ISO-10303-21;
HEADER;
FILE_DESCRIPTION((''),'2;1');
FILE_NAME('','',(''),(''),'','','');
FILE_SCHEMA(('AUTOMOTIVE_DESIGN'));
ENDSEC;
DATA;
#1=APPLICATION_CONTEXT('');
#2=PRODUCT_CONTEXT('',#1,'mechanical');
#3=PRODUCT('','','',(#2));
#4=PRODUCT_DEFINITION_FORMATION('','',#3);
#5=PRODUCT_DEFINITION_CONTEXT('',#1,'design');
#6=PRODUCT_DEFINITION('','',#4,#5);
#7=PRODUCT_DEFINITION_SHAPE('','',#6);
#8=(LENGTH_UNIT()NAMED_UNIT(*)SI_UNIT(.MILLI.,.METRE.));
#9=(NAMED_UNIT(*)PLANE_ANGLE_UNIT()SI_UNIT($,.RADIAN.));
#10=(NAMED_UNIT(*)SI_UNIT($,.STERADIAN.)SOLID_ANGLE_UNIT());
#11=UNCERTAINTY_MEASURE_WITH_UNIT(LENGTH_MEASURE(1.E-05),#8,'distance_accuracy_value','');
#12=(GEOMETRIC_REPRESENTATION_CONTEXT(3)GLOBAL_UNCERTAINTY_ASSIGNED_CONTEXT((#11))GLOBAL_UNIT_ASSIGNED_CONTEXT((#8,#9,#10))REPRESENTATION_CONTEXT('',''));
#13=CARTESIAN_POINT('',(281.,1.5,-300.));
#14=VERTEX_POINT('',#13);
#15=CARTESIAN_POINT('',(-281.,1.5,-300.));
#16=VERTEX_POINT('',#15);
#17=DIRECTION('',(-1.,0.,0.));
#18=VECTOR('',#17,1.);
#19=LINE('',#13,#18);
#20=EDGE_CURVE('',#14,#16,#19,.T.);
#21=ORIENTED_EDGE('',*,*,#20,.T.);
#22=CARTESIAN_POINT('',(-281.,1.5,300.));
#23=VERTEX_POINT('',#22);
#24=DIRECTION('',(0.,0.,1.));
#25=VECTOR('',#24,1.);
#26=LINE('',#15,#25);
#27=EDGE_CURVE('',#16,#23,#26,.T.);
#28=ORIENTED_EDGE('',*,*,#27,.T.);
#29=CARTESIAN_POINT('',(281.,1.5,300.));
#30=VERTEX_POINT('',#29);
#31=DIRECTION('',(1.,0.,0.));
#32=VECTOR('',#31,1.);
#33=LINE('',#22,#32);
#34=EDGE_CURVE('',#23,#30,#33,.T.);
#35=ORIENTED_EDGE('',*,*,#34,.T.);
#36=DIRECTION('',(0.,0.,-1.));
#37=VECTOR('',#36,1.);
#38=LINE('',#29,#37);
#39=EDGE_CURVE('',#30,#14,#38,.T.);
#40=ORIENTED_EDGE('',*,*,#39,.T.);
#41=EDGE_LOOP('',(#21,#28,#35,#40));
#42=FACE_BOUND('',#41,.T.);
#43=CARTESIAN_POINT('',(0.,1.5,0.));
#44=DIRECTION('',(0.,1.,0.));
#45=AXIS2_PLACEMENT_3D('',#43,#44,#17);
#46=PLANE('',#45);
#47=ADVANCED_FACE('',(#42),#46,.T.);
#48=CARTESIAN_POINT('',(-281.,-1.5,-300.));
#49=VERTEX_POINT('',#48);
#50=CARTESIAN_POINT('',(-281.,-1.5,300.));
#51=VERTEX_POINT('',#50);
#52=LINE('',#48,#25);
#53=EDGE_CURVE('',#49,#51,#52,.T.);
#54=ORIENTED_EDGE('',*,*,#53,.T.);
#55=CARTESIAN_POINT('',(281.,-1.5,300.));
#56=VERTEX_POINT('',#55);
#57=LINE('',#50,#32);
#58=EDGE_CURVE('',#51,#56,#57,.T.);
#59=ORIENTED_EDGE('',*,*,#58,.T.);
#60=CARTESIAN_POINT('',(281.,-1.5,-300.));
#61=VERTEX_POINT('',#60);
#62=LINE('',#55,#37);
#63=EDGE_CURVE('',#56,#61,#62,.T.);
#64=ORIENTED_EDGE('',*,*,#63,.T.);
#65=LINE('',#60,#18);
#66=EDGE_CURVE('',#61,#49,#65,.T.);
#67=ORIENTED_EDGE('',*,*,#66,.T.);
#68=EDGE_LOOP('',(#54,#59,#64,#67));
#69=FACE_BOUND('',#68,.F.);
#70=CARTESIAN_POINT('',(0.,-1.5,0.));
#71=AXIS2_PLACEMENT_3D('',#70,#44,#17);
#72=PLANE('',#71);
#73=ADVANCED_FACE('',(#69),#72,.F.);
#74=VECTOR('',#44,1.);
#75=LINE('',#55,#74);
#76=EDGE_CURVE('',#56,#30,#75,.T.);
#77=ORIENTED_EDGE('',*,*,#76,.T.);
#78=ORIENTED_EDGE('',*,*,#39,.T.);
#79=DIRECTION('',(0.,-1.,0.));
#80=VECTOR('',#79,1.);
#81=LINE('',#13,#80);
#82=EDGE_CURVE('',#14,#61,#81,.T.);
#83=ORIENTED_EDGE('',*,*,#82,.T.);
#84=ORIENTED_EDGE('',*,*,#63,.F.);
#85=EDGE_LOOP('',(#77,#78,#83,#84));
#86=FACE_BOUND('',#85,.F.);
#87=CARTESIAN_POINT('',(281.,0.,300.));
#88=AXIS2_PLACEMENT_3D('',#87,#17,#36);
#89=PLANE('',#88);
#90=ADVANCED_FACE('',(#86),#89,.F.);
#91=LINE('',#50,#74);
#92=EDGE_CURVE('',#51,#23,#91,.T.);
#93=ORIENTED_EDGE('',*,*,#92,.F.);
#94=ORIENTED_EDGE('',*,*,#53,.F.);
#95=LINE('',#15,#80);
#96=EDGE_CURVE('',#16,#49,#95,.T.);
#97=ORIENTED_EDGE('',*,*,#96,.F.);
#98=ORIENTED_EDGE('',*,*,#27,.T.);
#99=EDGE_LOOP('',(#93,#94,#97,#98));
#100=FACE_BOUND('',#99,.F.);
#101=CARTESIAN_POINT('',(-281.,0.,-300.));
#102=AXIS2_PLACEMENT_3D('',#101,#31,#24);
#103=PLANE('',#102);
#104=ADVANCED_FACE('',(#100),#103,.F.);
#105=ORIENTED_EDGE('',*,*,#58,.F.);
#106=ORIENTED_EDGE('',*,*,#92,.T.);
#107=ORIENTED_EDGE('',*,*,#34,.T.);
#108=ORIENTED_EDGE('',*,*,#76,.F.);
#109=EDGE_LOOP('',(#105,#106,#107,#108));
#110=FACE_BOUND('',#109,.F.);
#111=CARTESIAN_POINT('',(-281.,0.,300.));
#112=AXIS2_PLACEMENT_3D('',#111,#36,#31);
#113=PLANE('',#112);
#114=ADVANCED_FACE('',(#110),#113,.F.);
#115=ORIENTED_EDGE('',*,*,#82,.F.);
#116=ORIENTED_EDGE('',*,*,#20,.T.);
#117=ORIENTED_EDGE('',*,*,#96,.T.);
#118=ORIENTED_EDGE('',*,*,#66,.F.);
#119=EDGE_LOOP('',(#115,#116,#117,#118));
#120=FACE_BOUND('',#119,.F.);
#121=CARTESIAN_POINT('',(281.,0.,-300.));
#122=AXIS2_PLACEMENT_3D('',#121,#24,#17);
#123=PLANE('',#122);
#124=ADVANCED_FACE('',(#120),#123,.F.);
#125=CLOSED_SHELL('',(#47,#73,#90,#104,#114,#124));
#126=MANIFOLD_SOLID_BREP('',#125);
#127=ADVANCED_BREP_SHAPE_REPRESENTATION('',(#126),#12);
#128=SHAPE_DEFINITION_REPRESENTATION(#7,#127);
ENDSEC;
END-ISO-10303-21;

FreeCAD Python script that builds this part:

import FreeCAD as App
import Part
import Sketcher

V = App.Vector

doc = App.newDocument("Part")
body = doc.addObject("PartDesign::Body", "Body")

sketch1 = body.newObject("Sketcher::SketchObject", "Sketch")
sketch1.AttachmentSupport = (doc.getObject("XZ_Plane"), [""])
sketch1.MapMode = "FlatFace"
sketch1.addGeometry(Part.LineSegment(V(-281, -300, 0), V(-281, 300, 0)), False)
sketch1.addGeometry(Part.LineSegment(V(-281, 300, 0), V(281, 300, 0)), False)
sketch1.addGeometry(Part.LineSegment(V(281, 300, 0), V(281, -300, 0)), False)
sketch1.addGeometry(Part.LineSegment(V(281, -300, 0), V(-281, -300, 0)), False)
sketch1.addConstraint(Sketcher.Constraint("Coincident", 0, 2, 1, 1))
sketch1.addConstraint(Sketcher.Constraint("Coincident", 1, 2, 2, 1))
sketch1.addConstraint(Sketcher.Constraint("Coincident", 2, 2, 3, 1))
sketch1.addConstraint(Sketcher.Constraint("Coincident", 3, 2, 0, 1))
sketch1.addConstraint(Sketcher.Constraint("Vertical", 0))
sketch1.addConstraint(Sketcher.Constraint("Horizontal", 1))
sketch1.addConstraint(Sketcher.Constraint("Vertical", 2))
sketch1.addConstraint(Sketcher.Constraint("Horizontal", 3))
sketch1.addConstraint(Sketcher.Constraint("Symmetric", 0, 2, 2, 2, -1, 1))
sketch1.addConstraint(Sketcher.Constraint("DistanceX", 1, 1, 1, 2, 562.0))
sketch1.addConstraint(Sketcher.Constraint("DistanceY", 0, 1, 0, 2, 600.0))
pad1 = body.newObject("PartDesign::Pad", "Pad")
pad1.Profile = sketch1
pad1.Length = 3
pad1.Midplane = True

doc.recompute()
